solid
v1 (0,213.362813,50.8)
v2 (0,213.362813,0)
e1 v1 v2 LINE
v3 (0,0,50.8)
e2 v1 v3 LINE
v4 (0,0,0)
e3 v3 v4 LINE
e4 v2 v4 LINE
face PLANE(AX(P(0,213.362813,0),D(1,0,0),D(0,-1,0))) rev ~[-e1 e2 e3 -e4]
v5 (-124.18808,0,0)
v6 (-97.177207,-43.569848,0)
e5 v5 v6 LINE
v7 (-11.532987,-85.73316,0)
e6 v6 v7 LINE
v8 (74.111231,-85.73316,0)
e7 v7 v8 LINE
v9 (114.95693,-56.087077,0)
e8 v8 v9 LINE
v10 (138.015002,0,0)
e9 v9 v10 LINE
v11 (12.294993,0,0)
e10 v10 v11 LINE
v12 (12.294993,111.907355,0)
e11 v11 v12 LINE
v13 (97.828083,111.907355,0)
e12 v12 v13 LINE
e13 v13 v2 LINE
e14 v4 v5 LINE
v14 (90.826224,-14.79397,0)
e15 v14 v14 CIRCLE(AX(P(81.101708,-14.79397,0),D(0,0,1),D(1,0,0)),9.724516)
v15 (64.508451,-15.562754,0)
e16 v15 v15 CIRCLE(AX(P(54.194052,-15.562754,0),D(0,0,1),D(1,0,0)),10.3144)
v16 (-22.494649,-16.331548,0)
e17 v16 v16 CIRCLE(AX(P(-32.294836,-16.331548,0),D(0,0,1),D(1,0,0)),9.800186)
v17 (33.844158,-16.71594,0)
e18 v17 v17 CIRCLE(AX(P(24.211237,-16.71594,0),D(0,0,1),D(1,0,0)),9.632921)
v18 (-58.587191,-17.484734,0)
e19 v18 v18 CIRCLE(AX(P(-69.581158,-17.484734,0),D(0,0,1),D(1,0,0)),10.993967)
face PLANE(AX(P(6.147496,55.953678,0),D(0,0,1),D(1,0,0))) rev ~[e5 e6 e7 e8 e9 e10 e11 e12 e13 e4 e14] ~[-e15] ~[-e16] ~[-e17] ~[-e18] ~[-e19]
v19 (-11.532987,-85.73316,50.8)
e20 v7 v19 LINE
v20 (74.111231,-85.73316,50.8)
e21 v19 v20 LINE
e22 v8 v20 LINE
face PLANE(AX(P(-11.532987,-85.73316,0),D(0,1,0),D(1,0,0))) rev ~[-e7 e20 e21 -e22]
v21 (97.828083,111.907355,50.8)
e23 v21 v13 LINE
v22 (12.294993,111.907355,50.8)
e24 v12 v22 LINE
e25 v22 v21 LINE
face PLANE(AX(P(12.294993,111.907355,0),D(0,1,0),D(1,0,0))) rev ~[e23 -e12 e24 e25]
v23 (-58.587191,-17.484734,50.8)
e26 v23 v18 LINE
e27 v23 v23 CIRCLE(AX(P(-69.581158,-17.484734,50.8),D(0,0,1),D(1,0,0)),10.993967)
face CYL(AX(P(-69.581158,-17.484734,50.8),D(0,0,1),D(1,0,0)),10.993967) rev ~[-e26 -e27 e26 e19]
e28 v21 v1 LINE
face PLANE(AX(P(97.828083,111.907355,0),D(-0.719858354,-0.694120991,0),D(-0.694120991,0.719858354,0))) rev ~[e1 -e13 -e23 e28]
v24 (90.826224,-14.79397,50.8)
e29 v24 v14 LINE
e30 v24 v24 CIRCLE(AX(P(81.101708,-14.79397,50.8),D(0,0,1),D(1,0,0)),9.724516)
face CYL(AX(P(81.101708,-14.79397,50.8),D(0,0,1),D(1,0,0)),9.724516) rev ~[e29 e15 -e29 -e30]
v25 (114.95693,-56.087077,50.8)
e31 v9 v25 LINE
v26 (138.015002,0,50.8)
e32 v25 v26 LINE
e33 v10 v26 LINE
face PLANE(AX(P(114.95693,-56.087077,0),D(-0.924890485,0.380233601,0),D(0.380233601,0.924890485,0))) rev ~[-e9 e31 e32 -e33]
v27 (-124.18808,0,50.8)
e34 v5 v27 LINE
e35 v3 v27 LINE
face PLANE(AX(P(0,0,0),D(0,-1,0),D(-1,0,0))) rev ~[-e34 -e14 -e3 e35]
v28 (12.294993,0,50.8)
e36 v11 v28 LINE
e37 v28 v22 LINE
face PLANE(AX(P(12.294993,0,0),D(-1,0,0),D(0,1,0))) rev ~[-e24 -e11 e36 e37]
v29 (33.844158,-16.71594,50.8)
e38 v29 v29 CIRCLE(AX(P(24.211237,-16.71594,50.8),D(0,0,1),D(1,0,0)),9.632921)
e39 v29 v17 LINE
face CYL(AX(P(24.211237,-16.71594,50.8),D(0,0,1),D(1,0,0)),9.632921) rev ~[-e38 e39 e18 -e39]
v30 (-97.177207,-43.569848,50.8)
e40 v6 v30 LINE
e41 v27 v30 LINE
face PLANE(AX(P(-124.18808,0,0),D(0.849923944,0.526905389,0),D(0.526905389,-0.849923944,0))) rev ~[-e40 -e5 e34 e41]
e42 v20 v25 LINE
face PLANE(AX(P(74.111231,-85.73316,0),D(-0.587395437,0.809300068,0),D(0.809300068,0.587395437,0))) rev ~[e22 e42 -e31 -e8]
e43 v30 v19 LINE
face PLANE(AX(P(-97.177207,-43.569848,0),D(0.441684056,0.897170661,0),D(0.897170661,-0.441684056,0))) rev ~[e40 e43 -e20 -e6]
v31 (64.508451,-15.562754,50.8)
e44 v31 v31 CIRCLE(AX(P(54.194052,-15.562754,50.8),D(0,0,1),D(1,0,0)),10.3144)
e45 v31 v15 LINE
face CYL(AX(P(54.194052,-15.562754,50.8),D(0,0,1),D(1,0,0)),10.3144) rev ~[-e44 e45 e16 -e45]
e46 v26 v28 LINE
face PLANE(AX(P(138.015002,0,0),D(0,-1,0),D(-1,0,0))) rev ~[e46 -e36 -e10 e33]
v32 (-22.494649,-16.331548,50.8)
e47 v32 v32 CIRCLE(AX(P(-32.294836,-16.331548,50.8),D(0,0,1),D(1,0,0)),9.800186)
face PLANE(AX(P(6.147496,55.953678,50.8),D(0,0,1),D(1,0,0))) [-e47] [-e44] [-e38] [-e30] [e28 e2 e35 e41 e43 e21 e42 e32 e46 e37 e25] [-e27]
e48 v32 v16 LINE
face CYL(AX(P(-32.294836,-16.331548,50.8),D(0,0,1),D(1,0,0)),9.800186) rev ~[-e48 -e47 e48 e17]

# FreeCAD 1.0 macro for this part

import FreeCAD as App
import Part
import Sketcher
from FreeCAD import Vector
Q = App.Units.Quantity


def add_polygon(sketch, points):
    """Adds a closed chain of lines whose ends are joined by coincident constraints."""
    first, n = sketch.GeometryCount, len(points)
    for a, b in zip(points, points[1:] + points[:1]):
        sketch.addGeometry(Part.LineSegment(App.Vector(*a, 0), App.Vector(*b, 0)), False)
    for i in range(n):
        sketch.addConstraint(Sketcher.Constraint("Coincident", first + i, 2, first + (i + 1) % n, 1))

doc = App.newDocument("Part")
body = doc.addObject("PartDesign::Body", "Body")

sketch1 = body.newObject("Sketcher::SketchObject", "Sketch")
sketch1.AttachmentSupport = (doc.getObject("XY_Plane"), [""])
sketch1.MapMode = "FlatFace"
add_polygon(sketch1, [(0, 0), (-124, 0), (-97, -44), (-12, -86), (74, -86), (115, -56), (138, 0), (12, 0), (12, 112), (98, 112), (0, 213)])
sketch1.addConstraint(Sketcher.Constraint("Horizontal", 0))
sketch1.addConstraint(Sketcher.Constraint("Horizontal", 3))
sketch1.addConstraint(Sketcher.Constraint("Horizontal", 6))
sketch1.addConstraint(Sketcher.Constraint("Vertical", 7))
sketch1.addConstraint(Sketcher.Constraint("Horizontal", 8))
sketch1.addConstraint(Sketcher.Constraint("Vertical", 10))
sketch1.addConstraint(Sketcher.Constraint("Coincident", 10, 2, -1, 1))
sketch1.addConstraint(Sketcher.Constraint("PointOnObject", 5, 2, -1))
sketch1.addConstraint(Sketcher.Constraint("Distance", 4, 50.470402))
sketch1.addConstraint(Sketcher.Constraint("DistanceX", 0, 2, 0, 1, 124.18808))
sketch1.addConstraint(Sketcher.Constraint("DistanceX", 6, 2, 6, 1, 125.720009))
sketch1.addConstraint(Sketcher.Constraint("DistanceX", 8, 1, 8, 2, 85.53309))
sketch1.addConstraint(Sketcher.Constraint("DistanceX", 3, 2, 4, 2, 40.8457))
sketch1.addConstraint(Sketcher.Constraint("DistanceX", 1, 2, 6, 2, 109.4722))
sketch1.addConstraint(Sketcher.Constraint("Distance", 1, 51.263232))
sketch1.addConstraint(Sketcher.Constraint("DistanceX", 3, 1, 3, 2, 85.644217))
sketch1.addConstraint(Sketcher.Constraint("DistanceY", 7, 1, 7, 2, 111.907355))
sketch1.addConstraint(Sketcher.Constraint("DistanceY", 10, 2, 10, 1, 213.362813))
sketch1.addConstraint(Sketcher.Constraint("DistanceY", 2, 2, -1, 1, 85.73316))
sketch1.addConstraint(Sketcher.Constraint("DistanceX", -1, 1, 3, 2, 74.111231))
sketch1.addConstraint(Sketcher.Constraint("DistanceX", 1, 2, 2, 2, 85.644221))
pad1 = body.newObject("PartDesign::Pad", "Pad")
pad1.Profile = sketch1
pad1.Length = Q("1 in")

sketch2 = body.newObject("Sketcher::SketchObject", "Sketch001")
sketch2.AttachmentSupport = (doc.getObject("XY_Plane"), [""])
sketch2.MapMode = "FlatFace"
add_polygon(sketch2, [(0, 0), (-124, 0), (-97, -44), (-12, -86), (74, -86), (115, -56), (138, 0), (12, 0), (12, 112), (98, 112), (0, 213)])
sketch2.addConstraint(Sketcher.Constraint("Horizontal", 0))
sketch2.addConstraint(Sketcher.Constraint("Horizontal", 3))
sketch2.addConstraint(Sketcher.Constraint("Horizontal", 6))
sketch2.addConstraint(Sketcher.Constraint("Vertical", 7))
sketch2.addConstraint(Sketcher.Constraint("Horizontal", 8))
sketch2.addConstraint(Sketcher.Constraint("Vertical", 10))
sketch2.addConstraint(Sketcher.Constraint("Coincident", 10, 2, -1, 1))
sketch2.addConstraint(Sketcher.Constraint("PointOnObject", 5, 2, -1))
sketch2.addConstraint(Sketcher.Constraint("Distance", 4, 50.470402))
sketch2.addConstraint(Sketcher.Constraint("DistanceX", 0, 2, 0, 1, 124.18808))
sketch2.addConstraint(Sketcher.Constraint("DistanceX", 6, 2, 6, 1, 125.720009))
sketch2.addConstraint(Sketcher.Constraint("DistanceX", 8, 1, 8, 2, 85.53309))
sketch2.addConstraint(Sketcher.Constraint("DistanceX", 3, 2, 4, 2, 40.8457))
sketch2.addConstraint(Sketcher.Constraint("DistanceX", 1, 2, 6, 2, 109.4722))
sketch2.addConstraint(Sketcher.Constraint("Distance", 1, 51.263232))
sketch2.addConstraint(Sketcher.Constraint("DistanceX", 3, 1, 3, 2, 85.644217))
sketch2.addConstraint(Sketcher.Constraint("DistanceY", 7, 1, 7, 2, 111.907355))
sketch2.addConstraint(Sketcher.Constraint("DistanceY", 10, 2, 10, 1, 213.362813))
sketch2.addConstraint(Sketcher.Constraint("DistanceY", 2, 2, -1, 1, 85.73316))
sketch2.addConstraint(Sketcher.Constraint("DistanceX", -1, 1, 3, 2, 74.111231))
sketch2.addConstraint(Sketcher.Constraint("DistanceX", 1, 2, 2, 2, 85.644221))
pad2 = body.newObject("PartDesign::Pad", "Pad001")
pad2.Profile = sketch2
pad2.Length = Q("2 in")

sketch3 = body.newObject("Sketcher::SketchObject", "Sketch002")
sketch3.AttachmentSupport = (doc.getObject("XY_Plane"), [""])
sketch3.MapMode = "FlatFace"
sketch3.AttachmentOffset = App.Placement(Vector(0, 0, 2 * 25.4), App.Rotation())
sketch3.addGeometry(Part.Circle(Vector(24, -17, 0), Vector(0, 0, 1), 10), False)
sketch3.addGeometry(Part.Circle(Vector(54, -16, 0), Vector(0, 0, 1), 10), False)
sketch3.addGeometry(Part.Circle(Vector(81, -15, 0), Vector(0, 0, 1), 10), False)
sketch3.addGeometry(Part.Circle(Vector(-70, -17, 0), Vector(0, 0, 1), 11), False)
sketch3.addGeometry(Part.Circle(Vector(-32, -16, 0), Vector(0, 0, 1), 10), False)
sketch3.addConstraint(Sketcher.Constraint("Diameter", 1, 20.628799))
sketch3.addConstraint(Sketcher.Constraint("Diameter", 0, 19.265841))
sketch3.addConstraint(Sketcher.Constraint("Diameter", 2, 19.449032))
sketch3.addConstraint(Sketcher.Constraint("Diameter", 3, 21.987935))
sketch3.addConstraint(Sketcher.Constraint("Diameter", 4, 19.600373))
sketch3.addConstraint(Sketcher.Constraint("DistanceY", 0, 3, -1, 1, 16.71594))
sketch3.addConstraint(Sketcher.Constraint("DistanceX", -1, 1, 1, 3, 54.194052))
sketch3.addConstraint(Sketcher.Constraint("DistanceX", -1, 1, 2, 3, 81.101708))
sketch3.addConstraint(Sketcher.Constraint("DistanceY", 2, 3, -1, 1, 14.79397))
sketch3.addConstraint(Sketcher.Constraint("DistanceX", 3, 3, -1, 1, 69.581158))
sketch3.addConstraint(Sketcher.Constraint("DistanceX", 0, 3, 2, 3, 56.890471))
sketch3.addConstraint(Sketcher.Constraint("DistanceY", 3, 3, 1, 3, 1.92198))
sketch3.addConstraint(Sketcher.Constraint("DistanceY", 4, 3, 2, 3, 1.537578))
sketch3.addConstraint(Sketcher.Constraint("DistanceY", 1, 3, -1, 1, 15.562754))
sketch3.addConstraint(Sketcher.Constraint("DistanceX", 4, 3, -1, 1, 32.294836))
pocket1 = body.newObject("PartDesign::Pocket", "Pocket")
pocket1.Profile = sketch3
pocket1.Length = Q("2 in")

doc.recompute()
